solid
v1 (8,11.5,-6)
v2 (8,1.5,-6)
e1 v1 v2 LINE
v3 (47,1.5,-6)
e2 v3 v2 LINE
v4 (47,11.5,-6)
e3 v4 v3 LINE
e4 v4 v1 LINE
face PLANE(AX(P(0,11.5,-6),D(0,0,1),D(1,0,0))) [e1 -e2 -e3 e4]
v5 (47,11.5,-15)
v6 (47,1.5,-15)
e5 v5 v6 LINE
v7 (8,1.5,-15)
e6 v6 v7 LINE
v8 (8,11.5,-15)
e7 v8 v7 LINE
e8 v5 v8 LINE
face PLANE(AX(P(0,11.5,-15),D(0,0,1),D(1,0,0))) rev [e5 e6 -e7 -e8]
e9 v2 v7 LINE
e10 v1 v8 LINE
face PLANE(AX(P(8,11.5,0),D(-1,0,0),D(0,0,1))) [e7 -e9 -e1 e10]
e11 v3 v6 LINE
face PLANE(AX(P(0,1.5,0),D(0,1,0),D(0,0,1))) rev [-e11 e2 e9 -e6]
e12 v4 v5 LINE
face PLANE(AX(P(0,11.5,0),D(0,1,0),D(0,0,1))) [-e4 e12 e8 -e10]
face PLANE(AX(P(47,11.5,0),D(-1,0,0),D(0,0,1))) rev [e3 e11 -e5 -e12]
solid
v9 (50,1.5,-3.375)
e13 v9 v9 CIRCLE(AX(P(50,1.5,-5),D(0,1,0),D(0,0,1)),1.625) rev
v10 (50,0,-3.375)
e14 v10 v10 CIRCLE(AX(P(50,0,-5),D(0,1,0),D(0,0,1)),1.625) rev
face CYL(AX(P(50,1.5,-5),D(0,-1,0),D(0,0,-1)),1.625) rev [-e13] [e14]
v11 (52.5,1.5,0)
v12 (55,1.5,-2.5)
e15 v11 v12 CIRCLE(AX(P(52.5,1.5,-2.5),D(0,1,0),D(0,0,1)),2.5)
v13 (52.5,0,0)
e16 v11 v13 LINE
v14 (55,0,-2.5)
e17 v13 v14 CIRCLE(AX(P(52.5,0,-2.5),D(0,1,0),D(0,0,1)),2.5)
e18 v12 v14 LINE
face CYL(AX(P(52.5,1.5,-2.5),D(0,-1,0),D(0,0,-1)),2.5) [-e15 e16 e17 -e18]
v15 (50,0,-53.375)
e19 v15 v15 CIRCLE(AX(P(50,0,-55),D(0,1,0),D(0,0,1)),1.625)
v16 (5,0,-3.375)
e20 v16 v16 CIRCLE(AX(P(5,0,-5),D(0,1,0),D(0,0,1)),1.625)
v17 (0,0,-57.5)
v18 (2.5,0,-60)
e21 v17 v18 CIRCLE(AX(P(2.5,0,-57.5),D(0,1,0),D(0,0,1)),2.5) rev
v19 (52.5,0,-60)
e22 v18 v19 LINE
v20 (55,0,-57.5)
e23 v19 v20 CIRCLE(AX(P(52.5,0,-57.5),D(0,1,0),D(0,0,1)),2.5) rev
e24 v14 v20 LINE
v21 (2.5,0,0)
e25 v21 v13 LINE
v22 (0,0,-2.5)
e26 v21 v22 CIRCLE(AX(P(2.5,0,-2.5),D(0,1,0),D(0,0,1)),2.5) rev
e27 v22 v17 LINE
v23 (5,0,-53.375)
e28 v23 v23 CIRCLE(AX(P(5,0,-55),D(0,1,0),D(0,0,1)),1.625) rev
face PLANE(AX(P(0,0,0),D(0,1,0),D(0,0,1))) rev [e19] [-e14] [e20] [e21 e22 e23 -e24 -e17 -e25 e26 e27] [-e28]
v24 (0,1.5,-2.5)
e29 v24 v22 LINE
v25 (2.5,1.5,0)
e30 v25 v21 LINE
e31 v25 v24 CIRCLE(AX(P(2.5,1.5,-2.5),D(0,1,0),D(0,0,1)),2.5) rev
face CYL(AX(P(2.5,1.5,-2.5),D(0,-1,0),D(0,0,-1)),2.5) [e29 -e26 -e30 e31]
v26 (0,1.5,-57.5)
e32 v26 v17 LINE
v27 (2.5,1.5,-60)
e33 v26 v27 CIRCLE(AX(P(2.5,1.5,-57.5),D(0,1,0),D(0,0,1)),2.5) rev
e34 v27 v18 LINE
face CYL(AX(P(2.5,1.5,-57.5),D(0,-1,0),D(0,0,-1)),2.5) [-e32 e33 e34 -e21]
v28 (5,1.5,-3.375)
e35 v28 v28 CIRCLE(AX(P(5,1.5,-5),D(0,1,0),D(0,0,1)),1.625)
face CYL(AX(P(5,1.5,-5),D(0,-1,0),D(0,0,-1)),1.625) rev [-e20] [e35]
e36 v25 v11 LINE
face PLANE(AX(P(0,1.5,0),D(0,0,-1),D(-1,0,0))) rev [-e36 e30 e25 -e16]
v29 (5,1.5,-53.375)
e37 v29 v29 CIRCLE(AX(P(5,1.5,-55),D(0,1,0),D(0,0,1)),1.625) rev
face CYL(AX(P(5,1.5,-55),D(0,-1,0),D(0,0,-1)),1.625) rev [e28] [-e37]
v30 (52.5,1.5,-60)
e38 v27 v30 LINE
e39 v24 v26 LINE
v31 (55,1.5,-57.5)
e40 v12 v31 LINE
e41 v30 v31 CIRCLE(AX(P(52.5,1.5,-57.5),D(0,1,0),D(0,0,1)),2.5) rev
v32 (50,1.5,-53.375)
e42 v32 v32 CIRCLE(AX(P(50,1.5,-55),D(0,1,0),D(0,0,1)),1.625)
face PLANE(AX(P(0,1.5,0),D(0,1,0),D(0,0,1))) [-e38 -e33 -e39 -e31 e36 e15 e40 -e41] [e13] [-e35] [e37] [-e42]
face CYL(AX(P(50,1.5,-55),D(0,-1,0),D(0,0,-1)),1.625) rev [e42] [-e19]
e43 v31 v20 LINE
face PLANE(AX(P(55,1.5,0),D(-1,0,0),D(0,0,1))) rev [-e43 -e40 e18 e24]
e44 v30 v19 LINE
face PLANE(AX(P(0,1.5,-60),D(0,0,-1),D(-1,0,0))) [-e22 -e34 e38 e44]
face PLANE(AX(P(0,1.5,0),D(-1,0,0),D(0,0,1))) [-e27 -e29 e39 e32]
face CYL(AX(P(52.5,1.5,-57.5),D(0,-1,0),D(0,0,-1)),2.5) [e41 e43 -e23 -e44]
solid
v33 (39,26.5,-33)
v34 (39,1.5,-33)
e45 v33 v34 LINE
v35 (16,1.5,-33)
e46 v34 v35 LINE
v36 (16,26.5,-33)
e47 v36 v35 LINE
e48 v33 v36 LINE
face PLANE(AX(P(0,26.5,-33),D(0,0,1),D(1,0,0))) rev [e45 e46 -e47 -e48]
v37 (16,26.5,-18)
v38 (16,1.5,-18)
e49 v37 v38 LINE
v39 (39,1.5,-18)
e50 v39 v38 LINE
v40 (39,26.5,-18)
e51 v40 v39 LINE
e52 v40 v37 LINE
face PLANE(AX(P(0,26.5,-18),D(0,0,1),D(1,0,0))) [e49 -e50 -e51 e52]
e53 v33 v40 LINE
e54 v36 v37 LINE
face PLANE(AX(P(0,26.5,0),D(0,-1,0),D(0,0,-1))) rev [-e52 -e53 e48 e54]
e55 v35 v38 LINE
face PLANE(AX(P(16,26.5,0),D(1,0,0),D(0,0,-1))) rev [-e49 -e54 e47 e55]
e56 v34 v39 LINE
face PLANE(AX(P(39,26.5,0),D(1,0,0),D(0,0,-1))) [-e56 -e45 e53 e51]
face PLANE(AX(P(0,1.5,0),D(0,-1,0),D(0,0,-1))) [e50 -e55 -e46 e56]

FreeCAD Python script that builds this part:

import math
import FreeCAD as App
import Part
import Sketcher


def add_polygon(sketch, points):
    """Adds a closed chain of lines whose ends are joined by coincident constraints."""
    first, n = sketch.GeometryCount, len(points)
    for a, b in zip(points, points[1:] + points[:1]):
        sketch.addGeometry(Part.LineSegment(App.Vector(*a, 0), App.Vector(*b, 0)), False)
    for i in range(n):
        sketch.addConstraint(Sketcher.Constraint("Coincident", first + i, 2, first + (i + 1) % n, 1))

doc = App.newDocument("Part")
params = doc.addObject("Spreadsheet::Sheet", "Params")
for row, (alias, value) in enumerate([
    ("sketch1_radius", "2.5 mm"),
    ("sketch1_diameter", "3.25 mm"),
    ("sketch1_width", "50 mm"),
    ("sketch1_height", "55 mm"),
    ("pad1_length", "1.5 mm"),
    ("sketch2_width", "39 mm"),
    ("sketch2_height", "9 mm"),
    ("pad2_length", "10 mm"),
    ("sketch3_width", "23 mm"),
    ("sketch3_height", "15 mm"),
    ("pad3_length", "25 mm"),
], start=1):
    params.set(f"A{row}", alias)
    params.set(f"B{row}", "=" + value)
    params.setAlias(f"B{row}", alias)

body = doc.addObject("PartDesign::Body", "Body")

# Sketch on XZ plane
sketch1 = doc.addObject("Sketcher::SketchObject", "Sketch")
body.addObject(sketch1)
sketch1.AttachmentSupport = (doc.XZ_Plane, [""])
sketch1.MapMode = "FlatFace"
sketch1.addGeometry(Part.ArcOfCircle(Part.Circle(App.Vector(2.5, -57.5, 0), App.Vector(0, 0, 1), 2.5), math.radians(180), math.radians(270)), False)
sketch1.addGeometry(Part.LineSegment(App.Vector(0, -57.5, 0), App.Vector(0, -2.5, 0)), False)
sketch1.addGeometry(Part.ArcOfCircle(Part.Circle(App.Vector(2.5, -2.5, 0), App.Vector(0, 0, 1), 2.5), math.radians(90), math.radians(180)), False)
sketch1.addGeometry(Part.LineSegment(App.Vector(2.5, 0, 0), App.Vector(52.5, 0, 0)), False)
sketch1.addGeometry(Part.ArcOfCircle(Part.Circle(App.Vector(52.5, -2.5, 0), App.Vector(0, 0, 1), 2.5), math.radians(0), math.radians(90)), False)
sketch1.addGeometry(Part.LineSegment(App.Vector(55, -2.5, 0), App.Vector(55, -57.5, 0)), False)
sketch1.addGeometry(Part.ArcOfCircle(Part.Circle(App.Vector(52.5, -57.5, 0), App.Vector(0, 0, 1), 2.5), math.radians(-90), math.radians(0)), False)
sketch1.addGeometry(Part.LineSegment(App.Vector(52.5, -60, 0), App.Vector(2.5, -60, 0)), False)
sketch1.addGeometry(Part.Circle(App.Vector(50, -5, 0), App.Vector(0, 0, 1), 1.6), False)
sketch1.addGeometry(Part.Circle(App.Vector(5, -5, 0), App.Vector(0, 0, 1), 1.6), False)
sketch1.addGeometry(Part.Circle(App.Vector(50, -55, 0), App.Vector(0, 0, 1), 1.6), False)
sketch1.addGeometry(Part.Circle(App.Vector(5, -55, 0), App.Vector(0, 0, 1), 1.6), False)
sketch1.addConstraint(Sketcher.Constraint("Tangent", 0, 1, 1, 1))
sketch1.addConstraint(Sketcher.Constraint("Tangent", 1, 2, 2, 2))
sketch1.addConstraint(Sketcher.Constraint("Tangent", 2, 1, 3, 1))
sketch1.addConstraint(Sketcher.Constraint("Tangent", 3, 2, 4, 2))
sketch1.addConstraint(Sketcher.Constraint("Tangent", 4, 1, 5, 1))
sketch1.addConstraint(Sketcher.Constraint("Tangent", 5, 2, 6, 2))
sketch1.addConstraint(Sketcher.Constraint("Tangent", 6, 1, 7, 1))
sketch1.addConstraint(Sketcher.Constraint("Tangent", 7, 2, 0, 2))
sketch1.addConstraint(Sketcher.Constraint("Vertical", 1))
sketch1.addConstraint(Sketcher.Constraint("Horizontal", 3))
sketch1.addConstraint(Sketcher.Constraint("Vertical", 5))
sketch1.addConstraint(Sketcher.Constraint("Horizontal", 7))
sketch1.addConstraint(Sketcher.Constraint("Equal", 0, 2))
sketch1.addConstraint(Sketcher.Constraint("Equal", 2, 4))
sketch1.addConstraint(Sketcher.Constraint("Equal", 4, 6))
sketch1.addConstraint(Sketcher.Constraint("Equal", 8, 9))
sketch1.addConstraint(Sketcher.Constraint("Equal", 9, 10))
sketch1.addConstraint(Sketcher.Constraint("Equal", 10, 11))
sketch1.addConstraint(Sketcher.Constraint("PointOnObject", 0, 1, -2))
sketch1.addConstraint(Sketcher.Constraint("PointOnObject", 2, 1, -1))
sketch1.addConstraint(Sketcher.Constraint("Horizontal", 8, 3, 9, 3))
sketch1.addConstraint(Sketcher.Constraint("Horizontal", 10, 3, 11, 3))
sketch1.addConstraint(Sketcher.Constraint("Vertical", 8, 3, 10, 3))
sketch1.addConstraint(Sketcher.Constraint("Vertical", 9, 3, 11, 3))
sketch1.addConstraint(Sketcher.Constraint("Radius", 0, 2.5))
sketch1.addConstraint(Sketcher.Constraint("Diameter", 8, 3.25))
sketch1.addConstraint(Sketcher.Constraint("DistanceX", 3, 1, 3, 2, 50.0))
sketch1.addConstraint(Sketcher.Constraint("DistanceY", 1, 1, 1, 2, 55.0))
sketch1.addConstraint(Sketcher.Constraint("DistanceX", -1, 1, 8, 3, 50.0))
sketch1.addConstraint(Sketcher.Constraint("DistanceY", 8, 3, -1, 1, 5.0))
sketch1.addConstraint(Sketcher.Constraint("DistanceX", -1, 1, 9, 3, 5.0))
sketch1.addConstraint(Sketcher.Constraint("DistanceY", 10, 3, -1, 1, 55.0))
sketch1.setExpression("Constraints[24]", "Params.sketch1_radius")
sketch1.setExpression("Constraints[25]", "Params.sketch1_diameter")
sketch1.setExpression("Constraints[26]", "Params.sketch1_width")
sketch1.setExpression("Constraints[27]", "Params.sketch1_height")
pad1 = doc.addObject("PartDesign::Pad", "Pad")
body.addObject(pad1)
pad1.Profile = sketch1
pad1.setExpression("Length", "Params.pad1_length")
pad1.Reversed = True
body2 = doc.addObject("PartDesign::Body", "Body001")

# Sketch on XZ plane
sketch2 = doc.addObject("Sketcher::SketchObject", "Sketch001")
body2.addObject(sketch2)
sketch2.AttachmentSupport = (doc.getObject("XZ_Plane001"), [""])
sketch2.MapMode = "FlatFace"
sketch2.AttachmentOffset = App.Placement(App.Vector(0, 0, -1.5), App.Rotation())
add_polygon(sketch2, [(8, -15), (8, -6), (47, -6), (47, -15)])  # lines 0-3
sketch2.addConstraint(Sketcher.Constraint("Vertical", 0))
sketch2.addConstraint(Sketcher.Constraint("Horizontal", 1))
sketch2.addConstraint(Sketcher.Constraint("Vertical", 2))
sketch2.addConstraint(Sketcher.Constraint("Horizontal", 3))
sketch2.addConstraint(Sketcher.Constraint("DistanceX", 1, 1, 1, 2, 39.0))
sketch2.addConstraint(Sketcher.Constraint("DistanceY", 0, 1, 0, 2, 9.0))
sketch2.addConstraint(Sketcher.Constraint("DistanceX", -1, 1, 0, 2, 8.0))
sketch2.addConstraint(Sketcher.Constraint("DistanceY", 0, 2, -1, 1, 6.0))
sketch2.setExpression("Constraints[8]", "Params.sketch2_width")
sketch2.setExpression("Constraints[9]", "Params.sketch2_height")
pad2 = doc.addObject("PartDesign::Pad", "Pad001")
body2.addObject(pad2)
pad2.Profile = sketch2
pad2.setExpression("Length", "Params.pad2_length")
pad2.Reversed = True
body3 = doc.addObject("PartDesign::Body", "Body002")

# Sketch on XZ plane
sketch3 = doc.addObject("Sketcher::SketchObject", "Sketch002")
body3.addObject(sketch3)
sketch3.AttachmentSupport = (doc.getObject("XZ_Plane002"), [""])
sketch3.MapMode = "FlatFace"
sketch3.AttachmentOffset = App.Placement(App.Vector(0, 0, -1.5), App.Rotation())
add_polygon(sketch3, [(16, -33), (16, -18), (39, -18), (39, -33)])  # lines 0-3
sketch3.addConstraint(Sketcher.Constraint("Vertical", 0))
sketch3.addConstraint(Sketcher.Constraint("Horizontal", 1))
sketch3.addConstraint(Sketcher.Constraint("Vertical", 2))
sketch3.addConstraint(Sketcher.Constraint("Horizontal", 3))
sketch3.addConstraint(Sketcher.Constraint("DistanceX", 1, 1, 1, 2, 23.0))
sketch3.addConstraint(Sketcher.Constraint("DistanceY", 0, 1, 0, 2, 15.0))
sketch3.addConstraint(Sketcher.Constraint("DistanceX", -1, 1, 0, 2, 16.0))
sketch3.addConstraint(Sketcher.Constraint("DistanceY", 0, 2, -1, 1, 18.0))
sketch3.setExpression("Constraints[8]", "Params.sketch3_width")
sketch3.setExpression("Constraints[9]", "Params.sketch3_height")
pad3 = doc.addObject("PartDesign::Pad", "Pad002")
body3.addObject(pad3)
pad3.Profile = sketch3
pad3.setExpression("Length", "Params.pad3_length")
pad3.Reversed = True

doc.recompute()
